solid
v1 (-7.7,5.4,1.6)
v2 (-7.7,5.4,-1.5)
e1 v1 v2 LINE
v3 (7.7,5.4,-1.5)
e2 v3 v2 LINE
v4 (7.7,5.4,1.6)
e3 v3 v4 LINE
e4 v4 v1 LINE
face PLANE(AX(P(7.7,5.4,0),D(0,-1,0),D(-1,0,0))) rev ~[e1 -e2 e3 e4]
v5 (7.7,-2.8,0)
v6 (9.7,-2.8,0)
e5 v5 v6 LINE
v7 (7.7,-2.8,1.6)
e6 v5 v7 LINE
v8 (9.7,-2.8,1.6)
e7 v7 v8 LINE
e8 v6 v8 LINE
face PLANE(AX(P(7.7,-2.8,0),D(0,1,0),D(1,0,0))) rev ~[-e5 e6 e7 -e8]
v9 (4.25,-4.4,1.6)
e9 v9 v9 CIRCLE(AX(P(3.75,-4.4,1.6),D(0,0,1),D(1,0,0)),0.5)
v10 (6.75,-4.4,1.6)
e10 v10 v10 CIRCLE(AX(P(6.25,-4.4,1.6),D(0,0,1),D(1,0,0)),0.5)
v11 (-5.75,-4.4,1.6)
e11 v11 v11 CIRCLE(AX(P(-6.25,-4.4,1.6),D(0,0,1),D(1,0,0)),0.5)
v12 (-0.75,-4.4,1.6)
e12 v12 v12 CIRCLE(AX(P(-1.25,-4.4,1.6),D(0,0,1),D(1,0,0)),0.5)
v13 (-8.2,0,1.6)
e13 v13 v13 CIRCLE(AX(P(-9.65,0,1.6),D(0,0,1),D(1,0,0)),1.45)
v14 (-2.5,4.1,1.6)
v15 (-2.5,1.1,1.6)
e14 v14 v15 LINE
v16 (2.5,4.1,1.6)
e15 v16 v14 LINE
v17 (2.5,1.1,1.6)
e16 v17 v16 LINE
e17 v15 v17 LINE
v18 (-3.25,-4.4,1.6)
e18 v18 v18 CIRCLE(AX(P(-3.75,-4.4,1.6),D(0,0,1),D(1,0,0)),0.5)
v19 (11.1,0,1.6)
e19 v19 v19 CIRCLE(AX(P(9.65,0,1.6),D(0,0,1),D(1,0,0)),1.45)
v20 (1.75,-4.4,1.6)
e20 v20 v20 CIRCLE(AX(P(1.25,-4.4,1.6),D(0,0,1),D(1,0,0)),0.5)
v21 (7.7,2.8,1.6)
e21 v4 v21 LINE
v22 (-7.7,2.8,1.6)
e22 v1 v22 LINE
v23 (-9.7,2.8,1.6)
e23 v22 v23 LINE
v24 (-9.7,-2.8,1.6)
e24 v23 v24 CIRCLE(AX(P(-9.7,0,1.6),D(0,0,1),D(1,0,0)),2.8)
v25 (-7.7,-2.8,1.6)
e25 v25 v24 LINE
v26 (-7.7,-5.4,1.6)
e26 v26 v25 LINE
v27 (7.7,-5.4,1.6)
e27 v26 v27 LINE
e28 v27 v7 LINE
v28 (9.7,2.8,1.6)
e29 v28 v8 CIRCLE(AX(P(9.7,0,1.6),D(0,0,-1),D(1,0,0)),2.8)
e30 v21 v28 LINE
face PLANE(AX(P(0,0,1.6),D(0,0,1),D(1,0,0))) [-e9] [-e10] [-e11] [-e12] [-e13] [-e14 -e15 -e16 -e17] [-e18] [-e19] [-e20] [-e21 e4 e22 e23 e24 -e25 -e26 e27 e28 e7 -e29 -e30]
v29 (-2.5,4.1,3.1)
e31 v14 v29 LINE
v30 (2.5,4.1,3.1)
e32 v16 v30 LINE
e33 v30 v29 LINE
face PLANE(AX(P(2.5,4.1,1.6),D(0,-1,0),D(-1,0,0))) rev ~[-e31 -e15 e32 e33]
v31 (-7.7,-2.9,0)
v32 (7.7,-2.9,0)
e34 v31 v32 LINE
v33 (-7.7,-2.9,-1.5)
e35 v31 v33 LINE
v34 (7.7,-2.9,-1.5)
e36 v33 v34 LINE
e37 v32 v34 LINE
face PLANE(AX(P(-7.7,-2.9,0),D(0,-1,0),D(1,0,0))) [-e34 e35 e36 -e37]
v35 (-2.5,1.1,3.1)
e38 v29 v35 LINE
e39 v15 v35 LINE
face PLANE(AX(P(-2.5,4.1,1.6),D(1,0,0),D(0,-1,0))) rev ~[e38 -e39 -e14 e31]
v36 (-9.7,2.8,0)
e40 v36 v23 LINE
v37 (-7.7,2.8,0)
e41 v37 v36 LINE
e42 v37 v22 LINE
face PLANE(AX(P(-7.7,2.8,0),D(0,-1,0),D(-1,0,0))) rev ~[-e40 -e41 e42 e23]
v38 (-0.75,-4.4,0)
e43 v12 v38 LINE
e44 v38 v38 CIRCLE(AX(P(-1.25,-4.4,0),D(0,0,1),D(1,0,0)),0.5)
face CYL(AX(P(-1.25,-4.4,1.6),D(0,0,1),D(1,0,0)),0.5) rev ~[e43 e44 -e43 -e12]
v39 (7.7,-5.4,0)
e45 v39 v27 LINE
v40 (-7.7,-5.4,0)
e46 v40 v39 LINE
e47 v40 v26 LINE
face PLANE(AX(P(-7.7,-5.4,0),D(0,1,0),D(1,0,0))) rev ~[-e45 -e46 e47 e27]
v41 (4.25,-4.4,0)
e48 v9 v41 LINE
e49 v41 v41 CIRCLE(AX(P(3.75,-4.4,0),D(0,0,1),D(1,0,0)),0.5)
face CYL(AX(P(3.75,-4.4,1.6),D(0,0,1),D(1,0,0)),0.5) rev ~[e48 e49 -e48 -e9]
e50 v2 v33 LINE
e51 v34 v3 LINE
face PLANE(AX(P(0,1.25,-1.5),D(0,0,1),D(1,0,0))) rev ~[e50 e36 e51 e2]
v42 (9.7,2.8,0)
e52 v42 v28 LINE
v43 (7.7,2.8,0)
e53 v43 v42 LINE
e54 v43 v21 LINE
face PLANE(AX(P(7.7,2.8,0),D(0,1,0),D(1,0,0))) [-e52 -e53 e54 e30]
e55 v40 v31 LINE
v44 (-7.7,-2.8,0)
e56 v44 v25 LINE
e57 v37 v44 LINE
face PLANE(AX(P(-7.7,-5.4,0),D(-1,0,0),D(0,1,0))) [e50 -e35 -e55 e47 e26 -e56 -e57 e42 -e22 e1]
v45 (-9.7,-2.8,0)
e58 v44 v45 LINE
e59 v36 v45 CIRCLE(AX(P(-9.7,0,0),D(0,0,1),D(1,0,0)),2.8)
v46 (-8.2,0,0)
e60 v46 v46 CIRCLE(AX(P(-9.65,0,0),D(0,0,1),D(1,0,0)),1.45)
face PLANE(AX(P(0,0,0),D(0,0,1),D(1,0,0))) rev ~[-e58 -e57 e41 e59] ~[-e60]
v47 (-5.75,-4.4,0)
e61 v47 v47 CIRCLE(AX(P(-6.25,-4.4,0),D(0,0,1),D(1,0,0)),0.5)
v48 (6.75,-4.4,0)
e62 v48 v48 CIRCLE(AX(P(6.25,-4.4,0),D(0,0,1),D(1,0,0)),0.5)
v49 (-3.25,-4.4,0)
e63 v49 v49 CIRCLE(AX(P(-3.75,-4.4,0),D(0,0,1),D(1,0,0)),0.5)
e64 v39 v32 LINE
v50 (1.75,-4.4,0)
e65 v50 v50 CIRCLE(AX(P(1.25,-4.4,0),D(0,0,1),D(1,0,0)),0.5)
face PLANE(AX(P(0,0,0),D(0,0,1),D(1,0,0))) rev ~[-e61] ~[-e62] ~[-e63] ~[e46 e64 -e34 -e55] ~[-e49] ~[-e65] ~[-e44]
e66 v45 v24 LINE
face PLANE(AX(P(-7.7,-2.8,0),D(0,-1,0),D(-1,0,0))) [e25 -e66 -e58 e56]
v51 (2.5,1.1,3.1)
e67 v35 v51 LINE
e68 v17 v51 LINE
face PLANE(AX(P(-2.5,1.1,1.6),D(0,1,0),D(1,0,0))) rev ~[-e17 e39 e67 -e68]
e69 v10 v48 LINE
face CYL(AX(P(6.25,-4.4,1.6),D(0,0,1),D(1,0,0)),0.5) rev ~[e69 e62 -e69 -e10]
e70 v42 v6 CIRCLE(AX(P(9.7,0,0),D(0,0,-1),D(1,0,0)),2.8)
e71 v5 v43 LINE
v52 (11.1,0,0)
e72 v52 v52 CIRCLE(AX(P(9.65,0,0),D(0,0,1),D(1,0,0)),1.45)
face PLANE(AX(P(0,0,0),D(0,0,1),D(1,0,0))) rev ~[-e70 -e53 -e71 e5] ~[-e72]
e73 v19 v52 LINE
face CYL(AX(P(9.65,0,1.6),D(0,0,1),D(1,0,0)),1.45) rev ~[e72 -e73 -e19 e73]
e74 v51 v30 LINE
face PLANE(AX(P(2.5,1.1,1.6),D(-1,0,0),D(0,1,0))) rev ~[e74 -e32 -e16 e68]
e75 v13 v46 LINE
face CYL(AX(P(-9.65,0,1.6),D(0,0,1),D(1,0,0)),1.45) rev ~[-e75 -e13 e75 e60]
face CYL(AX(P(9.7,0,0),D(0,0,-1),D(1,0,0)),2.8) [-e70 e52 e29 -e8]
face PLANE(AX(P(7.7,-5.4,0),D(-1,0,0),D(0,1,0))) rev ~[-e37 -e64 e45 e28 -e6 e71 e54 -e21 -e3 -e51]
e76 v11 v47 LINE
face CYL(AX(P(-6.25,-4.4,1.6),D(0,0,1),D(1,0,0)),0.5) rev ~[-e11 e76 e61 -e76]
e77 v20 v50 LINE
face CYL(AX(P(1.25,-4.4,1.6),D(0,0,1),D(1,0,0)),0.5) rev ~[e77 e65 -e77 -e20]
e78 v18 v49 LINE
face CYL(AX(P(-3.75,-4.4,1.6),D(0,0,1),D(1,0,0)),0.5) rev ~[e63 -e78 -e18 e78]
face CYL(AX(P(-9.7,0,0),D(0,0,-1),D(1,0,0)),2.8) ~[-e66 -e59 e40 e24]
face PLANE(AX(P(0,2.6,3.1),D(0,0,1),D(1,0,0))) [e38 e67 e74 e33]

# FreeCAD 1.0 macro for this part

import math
import FreeCAD as App
import Part
import Sketcher
from FreeCAD import Vector

doc = App.newDocument("Part")
body = doc.addObject("PartDesign::Body", "Body")

# Sketch on XY plane
sketch1 = body.newObject("Sketcher::SketchObject", "Sketch")
sketch1.AttachmentSupport = (doc.getObject("XY_Plane"), [""])
sketch1.MapMode = "FlatFace"
sketch1.addGeometry(Part.LineSegment(Vector(-7.7, -2.8, 0), Vector(-7.7, -5.4, 0)), False)
sketch1.addGeometry(Part.LineSegment(Vector(-7.7, -5.4, 0), Vector(7.7, -5.4, 0)), False)
sketch1.addGeometry(Part.LineSegment(Vector(7.7, -5.4, 0), Vector(7.7, -2.8, 0)), False)
sketch1.addGeometry(Part.LineSegment(Vector(7.7, -2.8, 0), Vector(9.7, -2.8, 0)), False)
sketch1.addGeometry(Part.ArcOfCircle(Part.Circle(Vector(9.7, 0, 0), Vector(0, 0, 1), 2.8), math.radians(-90), math.radians(90)), False)
sketch1.addGeometry(Part.LineSegment(Vector(9.7, 2.8, 0), Vector(7.7, 2.8, 0)), False)
sketch1.addGeometry(Part.LineSegment(Vector(7.7, 2.8, 0), Vector(7.7, 5.4, 0)), False)
sketch1.addGeometry(Part.LineSegment(Vector(7.7, 5.4, 0), Vector(-7.7, 5.4, 0)), False)
sketch1.addGeometry(Part.LineSegment(Vector(-7.7, 5.4, 0), Vector(-7.7, 2.8, 0)), False)
sketch1.addGeometry(Part.LineSegment(Vector(-7.7, 2.8, 0), Vector(-9.7, 2.8, 0)), False)
sketch1.addGeometry(Part.ArcOfCircle(Part.Circle(Vector(-9.7, 0, 0), Vector(0, 0, 1), 2.8), math.radians(90), math.radians(270)), False)
sketch1.addGeometry(Part.LineSegment(Vector(-9.7, -2.8, 0), Vector(-7.7, -2.8, 0)), False)
sketch1.addConstraint(Sketcher.Constraint("Coincident", 0, 2, 1, 1))
sketch1.addConstraint(Sketcher.Constraint("Coincident", 1, 2, 2, 1))
sketch1.addConstraint(Sketcher.Constraint("Coincident", 2, 2, 3, 1))
sketch1.addConstraint(Sketcher.Constraint("Tangent", 3, 2, 4, 1))
sketch1.addConstraint(Sketcher.Constraint("Tangent", 4, 2, 5, 1))
sketch1.addConstraint(Sketcher.Constraint("Coincident", 5, 2, 6, 1))
sketch1.addConstraint(Sketcher.Constraint("Coincident", 6, 2, 7, 1))
sketch1.addConstraint(Sketcher.Constraint("Coincident", 7, 2, 8, 1))
sketch1.addConstraint(Sketcher.Constraint("Coincident", 8, 2, 9, 1))
sketch1.addConstraint(Sketcher.Constraint("Tangent", 9, 2, 10, 1))
sketch1.addConstraint(Sketcher.Constraint("Tangent", 10, 2, 11, 1))
sketch1.addConstraint(Sketcher.Constraint("Coincident", 11, 2, 0, 1))
sketch1.addConstraint(Sketcher.Constraint("Vertical", 0))
sketch1.addConstraint(Sketcher.Constraint("Horizontal", 1))
sketch1.addConstraint(Sketcher.Constraint("Vertical", 2))
sketch1.addConstraint(Sketcher.Constraint("Horizontal", 3))
sketch1.addConstraint(Sketcher.Constraint("Horizontal", 5))
sketch1.addConstraint(Sketcher.Constraint("Vertical", 6))
sketch1.addConstraint(Sketcher.Constraint("Horizontal", 7))
sketch1.addConstraint(Sketcher.Constraint("Vertical", 8))
sketch1.addConstraint(Sketcher.Constraint("Horizontal", 9))
sketch1.addConstraint(Sketcher.Constraint("Horizontal", 11))
sketch1.addConstraint(Sketcher.Constraint("Equal", 4, 10))
sketch1.addConstraint(Sketcher.Constraint("Symmetric", 4, 3, 10, 3, -1, 1))
sketch1.addConstraint(Sketcher.Constraint("Symmetric", 0, 2, 6, 2, -1, 1))
sketch1.addConstraint(Sketcher.Constraint("Symmetric", 5, 2, 8, 2, -2))
sketch1.addConstraint(Sketcher.Constraint("Vertical", 2, 2, 5, 2))
sketch1.addConstraint(Sketcher.Constraint("DistanceX", 0, 2, -1, 1, 7.7))
sketch1.addConstraint(Sketcher.Constraint("Radius", 4, 2.8))
sketch1.addConstraint(Sketcher.Constraint("DistanceX", 3, 1, 3, 2, 2.0))
sketch1.addConstraint(Sketcher.Constraint("DistanceY", 0, 2, 0, 1, 2.6))
pad1 = body.newObject("PartDesign::Pad", "Pad")
pad1.Profile = sketch1
pad1.Length = 1.6

# Sketch on XY plane
sketch2 = body.newObject("Sketcher::SketchObject", "Sketch001")
sketch2.AttachmentSupport = (doc.getObject("XY_Plane"), [""])
sketch2.MapMode = "FlatFace"
sketch2.AttachmentOffset = App.Placement(Vector(0, 0, 1.6), App.Rotation())
sketch2.addGeometry(Part.Circle(Vector(9.7, 0, 0), Vector(0, 0, 1), 1.4), False)
sketch2.addGeometry(Part.Circle(Vector(-9.7, 0, 0), Vector(0, 0, 1), 1.4), False)
sketch2.addConstraint(Sketcher.Constraint("Equal", 0, 1))
sketch2.addConstraint(Sketcher.Constraint("Symmetric", 0, 3, 1, 3, -1, 1))
sketch2.addConstraint(Sketcher.Constraint("PointOnObject", 0, 3, -1))
sketch2.addConstraint(Sketcher.Constraint("Diameter", 0, 2.9))
sketch2.addConstraint(Sketcher.Constraint("DistanceX", 1, 3, 0, 3, 19.3))
pocket1 = body.newObject("PartDesign::Pocket", "Pocket")
pocket1.Profile = sketch2
pocket1.Type = "ThroughAll"

# Sketch on XY plane
sketch3 = body.newObject("Sketcher::SketchObject", "Sketch002")
sketch3.AttachmentSupport = (doc.getObject("XY_Plane"), [""])
sketch3.MapMode = "FlatFace"
sketch3.AttachmentOffset = App.Placement(Vector(0, 0, 1.6), App.Rotation())
sketch3.addGeometry(Part.Circle(Vector(-6.2, -4.4, 0), Vector(0, 0, 1), 0.5), False)
sketch3.addGeometry(Part.Circle(Vector(-3.8, -4.4, 0), Vector(0, 0, 1), 0.5), False)
sketch3.addGeometry(Part.Circle(Vector(-1.2, -4.4, 0), Vector(0, 0, 1), 0.5), False)
sketch3.addGeometry(Part.Circle(Vector(1.2, -4.4, 0), Vector(0, 0, 1), 0.5), False)
sketch3.addGeometry(Part.Circle(Vector(3.8, -4.4, 0), Vector(0, 0, 1), 0.5), False)
sketch3.addGeometry(Part.Circle(Vector(6.2, -4.4, 0), Vector(0, 0, 1), 0.5), False)
sketch3.addConstraint(Sketcher.Constraint("Equal", 0, 1))
sketch3.addConstraint(Sketcher.Constraint("Equal", 1, 2))
sketch3.addConstraint(Sketcher.Constraint("Equal", 2, 3))
sketch3.addConstraint(Sketcher.Constraint("Equal", 3, 4))
sketch3.addConstraint(Sketcher.Constraint("Equal", 4, 5))
sketch3.addConstraint(Sketcher.Constraint("Symmetric", 2, 3, 3, 3, -2))
sketch3.addConstraint(Sketcher.Constraint("Symmetric", 1, 3, 4, 3, -2))
sketch3.addConstraint(Sketcher.Constraint("Symmetric", 0, 3, 5, 3, -2))
sketch3.addConstraint(Sketcher.Constraint("Horizontal", 0, 3, 1, 3))
sketch3.addConstraint(Sketcher.Constraint("Horizontal", 1, 3, 2, 3))
sketch3.addConstraint(Sketcher.Constraint("Diameter", 0, 1.0))
sketch3.addConstraint(Sketcher.Constraint("DistanceX", 0, 3, 2, 3, 5.0))
sketch3.addConstraint(Sketcher.Constraint("DistanceX", 1, 3, 3, 3, 5.0))
sketch3.addConstraint(Sketcher.Constraint("DistanceY", 0, 3, -1, 1, 4.4))
sketch3.addConstraint(Sketcher.Constraint("DistanceX", 0, 3, 1, 3, 2.5))
pocket2 = body.newObject("PartDesign::Pocket", "Pocket001")
pocket2.Profile = sketch3
pocket2.Type = "ThroughAll"

# Sketch on XY plane
sketch4 = body.newObject("Sketcher::SketchObject", "Sketch003")
sketch4.AttachmentSupport = (doc.getObject("XY_Plane"), [""])
sketch4.MapMode = "FlatFace"
sketch4.AttachmentOffset = App.Placement(Vector(0, 0, 1.6), App.Rotation())
sketch4.addGeometry(Part.LineSegment(Vector(-2.5, 4.1, 0), Vector(-2.5, 1.1, 0)), False)
sketch4.addGeometry(Part.LineSegment(Vector(-2.5, 1.1, 0), Vector(2.5, 1.1, 0)), False)
sketch4.addGeometry(Part.LineSegment(Vector(2.5, 1.1, 0), Vector(2.5, 4.1, 0)), False)
sketch4.addGeometry(Part.LineSegment(Vector(2.5, 4.1, 0), Vector(-2.5, 4.1, 0)), False)
sketch4.addConstraint(Sketcher.Constraint("Coincident", 0, 2, 1, 1))
sketch4.addConstraint(Sketcher.Constraint("Coincident", 1, 2, 2, 1))
sketch4.addConstraint(Sketcher.Constraint("Coincident", 2, 2, 3, 1))
sketch4.addConstraint(Sketcher.Constraint("Coincident", 3, 2, 0, 1))
sketch4.addConstraint(Sketcher.Constraint("Vertical", 0))
sketch4.addConstraint(Sketcher.Constraint("Horizontal", 1))
sketch4.addConstraint(Sketcher.Constraint("Vertical", 2))
sketch4.addConstraint(Sketcher.Constraint("Horizontal", 3))
sketch4.addConstraint(Sketcher.Constraint("DistanceX", 0, 2, -1, 1, 2.5))
sketch4.addConstraint(Sketcher.Constraint("DistanceX", -1, 1, 1, 2, 2.5))
sketch4.addConstraint(Sketcher.Constraint("DistanceY", 0, 2, 0, 1, 3.0))
sketch4.addConstraint(Sketcher.Constraint("DistanceY", -1, 1, 0, 2, 1.1))
pad2 = body.newObject("PartDesign::Pad", "Pad001")
pad2.Profile = sketch4
pad2.Length = 1.5

# Sketch on XY plane
sketch5 = body.newObject("Sketcher::SketchObject", "Sketch004")
sketch5.AttachmentSupport = (doc.getObject("XY_Plane"), [""])
sketch5.MapMode = "FlatFace"
sketch5.addGeometry(Part.LineSegment(Vector(-8, 5, 0), Vector(8, 5, 0)), False)
sketch5.addGeometry(Part.LineSegment(Vector(8, 5, 0), Vector(8, -3, 0)), False)
sketch5.addGeometry(Part.LineSegment(Vector(8, -3, 0), Vector(-8, -3, 0)), False)
sketch5.addGeometry(Part.LineSegment(Vector(-8, -3, 0), Vector(-8, 5, 0)), False)
sketch5.addConstraint(Sketcher.Constraint("Coincident", 0, 2, 1, 1))
sketch5.addConstraint(Sketcher.Constraint("Coincident", 1, 2, 2, 1))
sketch5.addConstraint(Sketcher.Constraint("Coincident", 2, 2, 3, 1))
sketch5.addConstraint(Sketcher.Constraint("Coincident", 3, 2, 0, 1))
sketch5.addConstraint(Sketcher.Constraint("Horizontal", 0))
sketch5.addConstraint(Sketcher.Constraint("Vertical", 1))
sketch5.addConstraint(Sketcher.Constraint("Horizontal", 2))
sketch5.addConstraint(Sketcher.Constraint("Vertical", 3))
sketch5.addConstraint(Sketcher.Constraint("DistanceX", 0, 1, 0, 2, 15.4))
sketch5.addConstraint(Sketcher.Constraint("DistanceY", 1, 2, 1, 1, 8.3))
sketch5.addConstraint(Sketcher.Constraint("DistanceX", -1, 1, 0, 2, 7.7))
sketch5.addConstraint(Sketcher.Constraint("DistanceY", -1, 1, 0, 2, 5.4))
pad3 = body.newObject("PartDesign::Pad", "Pad002")
pad3.Profile = sketch5
pad3.Length = 1.5
pad3.Reversed = True

doc.recompute()
